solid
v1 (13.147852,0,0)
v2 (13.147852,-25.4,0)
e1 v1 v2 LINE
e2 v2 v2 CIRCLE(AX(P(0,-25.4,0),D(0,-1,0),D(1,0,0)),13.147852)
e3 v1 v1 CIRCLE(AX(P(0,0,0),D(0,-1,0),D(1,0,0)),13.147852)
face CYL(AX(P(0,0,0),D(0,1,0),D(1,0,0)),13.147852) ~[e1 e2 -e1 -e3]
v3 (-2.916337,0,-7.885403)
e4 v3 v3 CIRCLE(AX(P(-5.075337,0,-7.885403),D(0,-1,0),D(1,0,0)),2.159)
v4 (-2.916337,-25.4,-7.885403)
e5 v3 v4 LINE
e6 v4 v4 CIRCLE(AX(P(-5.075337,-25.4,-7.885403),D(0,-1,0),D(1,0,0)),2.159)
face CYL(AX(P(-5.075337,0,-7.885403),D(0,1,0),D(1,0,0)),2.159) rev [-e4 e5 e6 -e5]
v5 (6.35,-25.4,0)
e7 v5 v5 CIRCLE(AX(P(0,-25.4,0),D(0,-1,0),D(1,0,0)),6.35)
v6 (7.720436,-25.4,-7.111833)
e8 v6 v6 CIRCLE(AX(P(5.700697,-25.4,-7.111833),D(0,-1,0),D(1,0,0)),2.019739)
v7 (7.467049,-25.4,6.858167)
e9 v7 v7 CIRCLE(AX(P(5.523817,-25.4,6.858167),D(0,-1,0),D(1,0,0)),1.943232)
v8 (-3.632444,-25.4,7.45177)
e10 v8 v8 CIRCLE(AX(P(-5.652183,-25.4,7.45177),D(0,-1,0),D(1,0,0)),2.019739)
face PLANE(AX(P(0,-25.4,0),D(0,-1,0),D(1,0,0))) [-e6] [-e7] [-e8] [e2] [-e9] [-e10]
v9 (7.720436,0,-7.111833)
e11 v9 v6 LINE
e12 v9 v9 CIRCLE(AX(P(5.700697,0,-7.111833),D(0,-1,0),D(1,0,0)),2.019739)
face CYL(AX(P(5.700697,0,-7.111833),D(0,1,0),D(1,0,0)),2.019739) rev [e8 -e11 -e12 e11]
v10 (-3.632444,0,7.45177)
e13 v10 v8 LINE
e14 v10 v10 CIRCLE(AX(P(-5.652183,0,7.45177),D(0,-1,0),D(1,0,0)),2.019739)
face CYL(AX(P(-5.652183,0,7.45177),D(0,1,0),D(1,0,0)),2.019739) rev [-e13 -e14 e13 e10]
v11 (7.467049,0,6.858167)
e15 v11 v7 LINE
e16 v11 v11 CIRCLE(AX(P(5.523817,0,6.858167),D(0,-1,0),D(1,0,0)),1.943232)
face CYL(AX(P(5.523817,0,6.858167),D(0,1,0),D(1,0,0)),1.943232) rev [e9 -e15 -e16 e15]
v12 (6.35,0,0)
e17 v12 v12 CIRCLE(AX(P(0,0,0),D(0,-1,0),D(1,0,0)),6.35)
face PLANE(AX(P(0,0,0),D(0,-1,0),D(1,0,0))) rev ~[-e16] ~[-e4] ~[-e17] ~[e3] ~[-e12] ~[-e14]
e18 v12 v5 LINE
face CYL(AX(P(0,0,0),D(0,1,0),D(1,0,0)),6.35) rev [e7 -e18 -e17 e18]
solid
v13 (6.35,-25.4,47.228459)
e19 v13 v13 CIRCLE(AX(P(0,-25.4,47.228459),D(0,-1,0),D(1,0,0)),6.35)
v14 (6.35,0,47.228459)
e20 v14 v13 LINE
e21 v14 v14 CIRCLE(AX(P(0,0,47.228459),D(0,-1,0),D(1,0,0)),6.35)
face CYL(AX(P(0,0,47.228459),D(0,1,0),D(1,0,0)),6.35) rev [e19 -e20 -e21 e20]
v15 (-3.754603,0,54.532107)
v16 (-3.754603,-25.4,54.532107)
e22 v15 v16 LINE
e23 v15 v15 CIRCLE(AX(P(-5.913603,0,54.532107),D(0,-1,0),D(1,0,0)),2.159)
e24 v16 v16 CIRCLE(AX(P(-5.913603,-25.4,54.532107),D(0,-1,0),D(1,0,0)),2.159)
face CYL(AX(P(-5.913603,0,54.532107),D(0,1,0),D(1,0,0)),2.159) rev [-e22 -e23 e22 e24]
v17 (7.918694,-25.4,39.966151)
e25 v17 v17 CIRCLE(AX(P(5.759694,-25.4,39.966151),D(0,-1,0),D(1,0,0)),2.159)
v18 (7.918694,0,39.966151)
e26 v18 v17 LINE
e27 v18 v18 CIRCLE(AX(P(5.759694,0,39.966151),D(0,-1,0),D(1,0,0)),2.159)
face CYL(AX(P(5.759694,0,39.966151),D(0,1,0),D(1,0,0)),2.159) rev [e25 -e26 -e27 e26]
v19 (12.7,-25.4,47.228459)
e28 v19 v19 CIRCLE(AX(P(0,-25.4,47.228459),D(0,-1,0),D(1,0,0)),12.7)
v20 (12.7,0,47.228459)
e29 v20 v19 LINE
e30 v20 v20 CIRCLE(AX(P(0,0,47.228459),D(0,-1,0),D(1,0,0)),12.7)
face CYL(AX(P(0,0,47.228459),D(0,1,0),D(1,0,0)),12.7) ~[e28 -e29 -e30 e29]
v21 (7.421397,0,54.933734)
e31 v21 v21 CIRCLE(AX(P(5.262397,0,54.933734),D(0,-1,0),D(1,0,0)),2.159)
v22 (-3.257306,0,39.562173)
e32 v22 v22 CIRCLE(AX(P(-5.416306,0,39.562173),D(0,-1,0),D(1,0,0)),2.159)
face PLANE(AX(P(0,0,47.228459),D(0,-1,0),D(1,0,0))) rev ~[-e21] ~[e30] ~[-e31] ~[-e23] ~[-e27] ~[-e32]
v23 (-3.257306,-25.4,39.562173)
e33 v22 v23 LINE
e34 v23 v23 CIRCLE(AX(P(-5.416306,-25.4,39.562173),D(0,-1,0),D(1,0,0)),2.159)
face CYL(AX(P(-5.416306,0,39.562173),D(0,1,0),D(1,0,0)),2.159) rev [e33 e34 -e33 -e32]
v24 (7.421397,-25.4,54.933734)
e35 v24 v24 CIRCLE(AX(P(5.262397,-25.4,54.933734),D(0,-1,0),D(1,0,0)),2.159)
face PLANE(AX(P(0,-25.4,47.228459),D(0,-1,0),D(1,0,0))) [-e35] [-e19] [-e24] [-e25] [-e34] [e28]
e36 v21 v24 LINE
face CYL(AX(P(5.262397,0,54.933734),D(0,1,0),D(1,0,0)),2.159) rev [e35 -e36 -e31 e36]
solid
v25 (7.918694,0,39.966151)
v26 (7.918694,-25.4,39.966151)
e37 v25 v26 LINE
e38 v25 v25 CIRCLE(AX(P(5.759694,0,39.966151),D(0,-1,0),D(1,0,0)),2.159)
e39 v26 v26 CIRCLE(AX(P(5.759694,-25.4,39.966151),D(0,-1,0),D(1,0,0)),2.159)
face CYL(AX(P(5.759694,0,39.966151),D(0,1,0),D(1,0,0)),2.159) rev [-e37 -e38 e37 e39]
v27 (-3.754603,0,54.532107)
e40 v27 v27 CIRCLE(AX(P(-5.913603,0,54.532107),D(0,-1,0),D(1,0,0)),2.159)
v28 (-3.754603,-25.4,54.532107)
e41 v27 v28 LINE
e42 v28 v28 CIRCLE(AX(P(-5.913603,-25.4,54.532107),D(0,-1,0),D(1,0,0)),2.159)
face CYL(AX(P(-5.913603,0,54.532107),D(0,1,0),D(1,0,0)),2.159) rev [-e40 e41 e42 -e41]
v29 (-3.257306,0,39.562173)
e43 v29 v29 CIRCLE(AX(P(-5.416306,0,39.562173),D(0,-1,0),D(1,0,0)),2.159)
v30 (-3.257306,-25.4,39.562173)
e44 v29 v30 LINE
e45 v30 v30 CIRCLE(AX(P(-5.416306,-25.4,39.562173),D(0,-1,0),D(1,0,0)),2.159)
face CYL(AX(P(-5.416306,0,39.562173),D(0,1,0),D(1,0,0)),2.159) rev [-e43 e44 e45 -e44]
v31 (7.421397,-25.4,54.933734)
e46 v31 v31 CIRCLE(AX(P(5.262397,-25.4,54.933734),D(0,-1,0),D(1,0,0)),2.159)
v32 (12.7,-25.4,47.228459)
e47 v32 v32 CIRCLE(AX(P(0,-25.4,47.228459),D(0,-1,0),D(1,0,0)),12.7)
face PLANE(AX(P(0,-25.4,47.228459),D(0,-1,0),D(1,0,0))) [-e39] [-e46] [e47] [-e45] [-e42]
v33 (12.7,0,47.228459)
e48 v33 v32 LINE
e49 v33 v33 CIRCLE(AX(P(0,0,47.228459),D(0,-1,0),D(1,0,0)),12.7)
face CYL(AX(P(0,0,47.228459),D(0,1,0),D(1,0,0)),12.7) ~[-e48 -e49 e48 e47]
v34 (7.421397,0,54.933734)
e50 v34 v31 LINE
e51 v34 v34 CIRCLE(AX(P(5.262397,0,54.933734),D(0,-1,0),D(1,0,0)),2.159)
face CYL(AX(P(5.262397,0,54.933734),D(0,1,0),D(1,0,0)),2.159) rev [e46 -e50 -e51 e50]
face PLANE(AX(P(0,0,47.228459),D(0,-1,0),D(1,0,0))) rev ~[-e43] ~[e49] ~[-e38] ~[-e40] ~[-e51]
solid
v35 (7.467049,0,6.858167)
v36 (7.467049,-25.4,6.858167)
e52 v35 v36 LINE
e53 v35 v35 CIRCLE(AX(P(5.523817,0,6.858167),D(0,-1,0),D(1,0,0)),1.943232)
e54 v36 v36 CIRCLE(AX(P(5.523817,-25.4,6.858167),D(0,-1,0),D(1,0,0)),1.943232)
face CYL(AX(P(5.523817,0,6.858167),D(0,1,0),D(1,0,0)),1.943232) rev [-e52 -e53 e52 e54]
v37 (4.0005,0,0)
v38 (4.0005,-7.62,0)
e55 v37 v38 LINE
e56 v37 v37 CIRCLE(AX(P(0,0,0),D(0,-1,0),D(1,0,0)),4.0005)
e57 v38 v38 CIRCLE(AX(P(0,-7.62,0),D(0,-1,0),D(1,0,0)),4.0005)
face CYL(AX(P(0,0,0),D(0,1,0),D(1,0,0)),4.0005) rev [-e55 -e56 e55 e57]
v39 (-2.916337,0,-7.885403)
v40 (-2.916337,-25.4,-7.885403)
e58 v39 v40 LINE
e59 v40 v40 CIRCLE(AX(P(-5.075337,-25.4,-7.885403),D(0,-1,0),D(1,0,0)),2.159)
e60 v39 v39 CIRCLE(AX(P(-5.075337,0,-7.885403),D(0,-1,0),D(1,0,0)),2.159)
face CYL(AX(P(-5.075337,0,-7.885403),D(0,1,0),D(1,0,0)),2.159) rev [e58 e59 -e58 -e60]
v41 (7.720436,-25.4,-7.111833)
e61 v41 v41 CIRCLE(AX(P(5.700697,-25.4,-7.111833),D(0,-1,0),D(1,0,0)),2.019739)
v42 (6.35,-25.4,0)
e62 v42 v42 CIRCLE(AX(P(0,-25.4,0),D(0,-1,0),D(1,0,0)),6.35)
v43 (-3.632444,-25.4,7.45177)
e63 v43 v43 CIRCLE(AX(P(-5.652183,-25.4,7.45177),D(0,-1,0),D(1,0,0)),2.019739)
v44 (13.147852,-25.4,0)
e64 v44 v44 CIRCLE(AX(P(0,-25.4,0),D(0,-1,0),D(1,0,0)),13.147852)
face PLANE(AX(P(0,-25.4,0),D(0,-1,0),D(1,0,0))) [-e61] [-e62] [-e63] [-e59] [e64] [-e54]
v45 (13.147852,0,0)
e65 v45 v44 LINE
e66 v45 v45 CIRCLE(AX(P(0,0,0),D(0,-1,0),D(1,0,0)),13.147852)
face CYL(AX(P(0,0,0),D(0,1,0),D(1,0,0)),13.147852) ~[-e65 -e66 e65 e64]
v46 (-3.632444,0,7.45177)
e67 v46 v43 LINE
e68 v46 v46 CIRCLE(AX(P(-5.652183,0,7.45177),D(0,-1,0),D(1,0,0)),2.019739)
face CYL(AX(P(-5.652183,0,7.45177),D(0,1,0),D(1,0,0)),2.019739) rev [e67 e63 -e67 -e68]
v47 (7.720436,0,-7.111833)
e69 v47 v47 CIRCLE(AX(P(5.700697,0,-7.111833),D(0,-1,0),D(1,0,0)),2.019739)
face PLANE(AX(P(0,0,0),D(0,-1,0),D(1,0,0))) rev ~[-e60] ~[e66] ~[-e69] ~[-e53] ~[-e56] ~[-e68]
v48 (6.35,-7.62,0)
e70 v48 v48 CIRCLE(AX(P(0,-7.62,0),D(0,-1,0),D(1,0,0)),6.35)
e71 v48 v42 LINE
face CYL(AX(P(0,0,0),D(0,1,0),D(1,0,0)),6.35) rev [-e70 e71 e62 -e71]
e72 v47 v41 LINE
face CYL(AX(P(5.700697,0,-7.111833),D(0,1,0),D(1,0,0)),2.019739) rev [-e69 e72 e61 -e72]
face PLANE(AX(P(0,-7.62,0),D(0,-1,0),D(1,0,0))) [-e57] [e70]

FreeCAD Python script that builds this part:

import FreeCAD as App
import Part
import Sketcher
from FreeCAD import Vector
Q = App.Units.Quantity

doc = App.newDocument("Part")
body = doc.addObject("PartDesign::Body", "Body")
body.AllowCompound = True

# Sketch on XZ plane
sketch1 = body.newObject("Sketcher::SketchObject", "Sketch")
sketch1.AttachmentSupport = (doc.getObject("XZ_Plane"), [""])
sketch1.MapMode = "FlatFace"
sketch1.addGeometry([
    Part.Circle(Vector(0, 0, 0), Vector(0, 0, 1), 6.35),
    Part.Circle(Vector(0, 0, 0), Vector(0, 0, 1), 4.0005),
], False)
sketch1.addConstraint([
    Sketcher.Constraint("Coincident", 0, 3, -1, 1),
    Sketcher.Constraint("Coincident", 1, 3, -1, 1),
    Sketcher.Constraint("Diameter", 0, Q("0.5 in")),
    Sketcher.Constraint("Diameter", 1, Q("0.315 in")),
])
pad1 = body.newObject("PartDesign::Pad", "Pad")
pad1.Profile = sketch1
pad1.Length = Q("0.3 in")

# Sketch on XZ plane
sketch2 = body.newObject("Sketcher::SketchObject", "Sketch001")
sketch2.AttachmentSupport = (doc.getObject("XZ_Plane"), [""])
sketch2.MapMode = "FlatFace"
sketch2.addGeometry([
    Part.Circle(Vector(0, 0, 0), Vector(0, 0, 1), 13.147852),  # 0
    Part.Circle(Vector(-5.075337, -7.885403, 0), Vector(0, 0, 1), 2.159),  # 1
    Part.Circle(Vector(5.700697, -7.111833, 0), Vector(0, 0, 1), 2.019739),  # 2
    Part.Circle(Vector(0, 0, 0), Vector(0, 0, 1), 6.35),  # 3
    Part.Circle(Vector(-5.652183, 7.45177, 0), Vector(0, 0, 1), 2.019739),  # 4
    Part.Circle(Vector(5.523817, 6.858167, 0), Vector(0, 0, 1), 1.943232),  # 5
], False)
sketch2.addConstraint([
    Sketcher.Constraint("Coincident", 0, 3, -1, 1),
    Sketcher.Constraint("Coincident", 3, 3, -1, 1),
    Sketcher.Constraint("Equal", 2, 4),
    Sketcher.Constraint("Diameter", 3, Q("0.5 in")),
    Sketcher.Constraint("Diameter", 1, Q("0.17 in")),
    Sketcher.Constraint("DistanceX", 4, 3, 5, 3, Q("0.44 in")),
    Sketcher.Constraint("DistanceY", 2, 3, 5, 3, Q("0.55 in")),
    Sketcher.Constraint("Diameter", 0, 26.295704),
    Sketcher.Constraint("Diameter", 2, 4.039478),
    Sketcher.Constraint("Diameter", 5, 3.886464),
    Sketcher.Constraint("DistanceY", -1, 1, 4, 3, 7.45177),
    Sketcher.Constraint("DistanceY", 1, 3, 2, 3, 0.77357),
    Sketcher.Constraint("DistanceX", 4, 3, 2, 3, 11.35288),
    Sketcher.Constraint("DistanceX", 1, 3, -1, 1, 5.075337),
    Sketcher.Constraint("DistanceY", 1, 3, -1, 1, 7.885403),
    Sketcher.Constraint("DistanceX", -1, 1, 2, 3, 5.700697),
])
pad2 = body.newObject("PartDesign::Pad", "Pad001")
pad2.Profile = sketch2
pad2.Length = Q("1 in")

# Sketch on XZ plane
sketch3 = body.newObject("Sketcher::SketchObject", "Sketch002")
sketch3.AttachmentSupport = (doc.getObject("XZ_Plane"), [""])
sketch3.MapMode = "FlatFace"
sketch3.addGeometry([
    Part.Circle(Vector(0, 0, 0), Vector(0, 0, 1), 13.147852),  # 0
    Part.Circle(Vector(-5.075337, -7.885403, 0), Vector(0, 0, 1), 2.159),  # 1
    Part.Circle(Vector(5.700697, -7.111833, 0), Vector(0, 0, 1), 2.019739),  # 2
    Part.Circle(Vector(0, 0, 0), Vector(0, 0, 1), 6.35),  # 3
    Part.Circle(Vector(-5.652183, 7.45177, 0), Vector(0, 0, 1), 2.019739),  # 4
    Part.Circle(Vector(5.523817, 6.858167, 0), Vector(0, 0, 1), 1.943232),  # 5
    Part.Circle(Vector(0, 47.228459, 0), Vector(0, 0, 1), 12.7),  # 6
    Part.Circle(Vector(-5.416306, 39.562173, 0), Vector(0, 0, 1), 2.159),  # 7
    Part.Circle(Vector(5.759694, 39.966151, 0), Vector(0, 0, 1), 2.159),  # 8
    Part.Circle(Vector(0, 47.228459, 0), Vector(0, 0, 1), 6.35),  # 9
    Part.Circle(Vector(-5.913603, 54.532107, 0), Vector(0, 0, 1), 2.159),  # 10
    Part.Circle(Vector(5.262397, 54.933734, 0), Vector(0, 0, 1), 2.159),  # 11
], False)
sketch3.addConstraint([
    Sketcher.Constraint("Coincident", 0, 3, -1, 1),
    Sketcher.Constraint("Coincident", 3, 3, -1, 1),
    Sketcher.Constraint("Coincident", 9, 3, 6, 3),
    Sketcher.Constraint("Equal", 2, 4),
    Sketcher.Constraint("Equal", 1, 7),
    Sketcher.Constraint("Equal", 7, 8),
    Sketcher.Constraint("Equal", 3, 9),
    Sketcher.Constraint("Equal", 8, 10),
    Sketcher.Constraint("Equal", 10, 11),
    Sketcher.Constraint("PointOnObject", 6, 3, -2),
    Sketcher.Constraint("Diameter", 6, Q("1 in")),
    Sketcher.Constraint("Diameter", 3, Q("0.5 in")),
    Sketcher.Constraint("Diameter", 1, Q("0.17 in")),
    Sketcher.Constraint("DistanceX", 4, 3, 5, 3, Q("0.44 in")),
    Sketcher.Constraint("DistanceY", 2, 3, 5, 3, Q("0.55 in")),
    Sketcher.Constraint("DistanceX", 7, 3, 8, 3, Q("0.44 in")),
    Sketcher.Constraint("DistanceX", 10, 3, 11, 3, Q("0.44 in")),
    Sketcher.Constraint("Diameter", 0, 26.295704),
    Sketcher.Constraint("Diameter", 2, 4.039478),
    Sketcher.Constraint("Diameter", 5, 3.886464),
    Sketcher.Constraint("DistanceY", -1, 1, 4, 3, 7.45177),
    Sketcher.Constraint("DistanceY", -1, 1, 6, 3, 47.228459),
    Sketcher.Constraint("DistanceY", -1, 1, 8, 3, 39.966151),
    Sketcher.Constraint("DistanceY", 1, 3, 2, 3, 0.77357),
    Sketcher.Constraint("DistanceX", 4, 3, 2, 3, 11.35288),
    Sketcher.Constraint("DistanceY", 2, 3, 6, 3, 54.340292),
    Sketcher.Constraint("DistanceY", 7, 3, 8, 3, 0.403978),
    Sketcher.Constraint("DistanceY", 6, 3, 10, 3, 7.303648),
    Sketcher.Constraint("DistanceX", 10, 3, 4, 3, 0.26142),
    Sketcher.Constraint("DistanceY", 7, 3, 11, 3, 15.371561),
    Sketcher.Constraint("DistanceX", 1, 3, -1, 1, 5.075337),
    Sketcher.Constraint("DistanceX", -1, 1, 2, 3, 5.700697),
    Sketcher.Constraint("DistanceX", 7, 3, -1, 1, 5.416306),
])
pad3 = body.newObject("PartDesign::Pad", "Pad002")
pad3.Profile = sketch3
pad3.Length = Q("1 in")
body2 = doc.addObject("PartDesign::Body", "Body001")
body2.AllowCompound = True

# Sketch on XZ plane
sketch4 = body2.newObject("Sketcher::SketchObject", "Sketch003")
sketch4.AttachmentSupport = (doc.getObject("XZ_Plane001"), [""])
sketch4.MapMode = "FlatFace"
sketch4.addGeometry([
    Part.Circle(Vector(0, 0, 0), Vector(0, 0, 1), 13.147852),  # 0
    Part.Circle(Vector(-5.075337, -7.885403, 0), Vector(0, 0, 1), 2.159),  # 1
    Part.Circle(Vector(5.700697, -7.111833, 0), Vector(0, 0, 1), 2.019739),  # 2
    Part.Circle(Vector(0, 0, 0), Vector(0, 0, 1), 6.35),  # 3
    Part.Circle(Vector(-5.652183, 7.45177, 0), Vector(0, 0, 1), 2.019739),  # 4
    Part.Circle(Vector(5.523817, 6.858167, 0), Vector(0, 0, 1), 1.943232),  # 5
    Part.Circle(Vector(0, 47.228459, 0), Vector(0, 0, 1), 12.7),  # 6
    Part.Circle(Vector(-5.416306, 39.562173, 0), Vector(0, 0, 1), 2.159),  # 7
    Part.Circle(Vector(5.759694, 39.966151, 0), Vector(0, 0, 1), 2.159),  # 8
    Part.Circle(Vector(-5.913603, 54.532107, 0), Vector(0, 0, 1), 2.159),  # 9
    Part.Circle(Vector(5.262397, 54.933734, 0), Vector(0, 0, 1), 2.159),  # 10
], False)
sketch4.addConstraint([
    Sketcher.Constraint("Coincident", 0, 3, -1, 1),
    Sketcher.Constraint("Coincident", 3, 3, -1, 1),
    Sketcher.Constraint("Equal", 2, 4),
    Sketcher.Constraint("Equal", 1, 7),
    Sketcher.Constraint("Equal", 7, 8),
    Sketcher.Constraint("Equal", 8, 9),
    Sketcher.Constraint("Equal", 9, 10),
    Sketcher.Constraint("PointOnObject", 6, 3, -2),
    Sketcher.Constraint("Diameter", 6, Q("1 in")),
    Sketcher.Constraint("Diameter", 3, Q("0.5 in")),
    Sketcher.Constraint("Diameter", 1, Q("0.17 in")),
    Sketcher.Constraint("DistanceX", 4, 3, 5, 3, Q("0.44 in")),
    Sketcher.Constraint("DistanceY", 2, 3, 5, 3, Q("0.55 in")),
    Sketcher.Constraint("DistanceX", 7, 3, 8, 3, Q("0.44 in")),
    Sketcher.Constraint("DistanceX", 9, 3, 10, 3, Q("0.44 in")),
    Sketcher.Constraint("Diameter", 0, 26.295704),
    Sketcher.Constraint("Diameter", 2, 4.039478),
    Sketcher.Constraint("Diameter", 5, 3.886464),
    Sketcher.Constraint("DistanceY", -1, 1, 4, 3, 7.45177),
    Sketcher.Constraint("DistanceY", -1, 1, 6, 3, 47.228459),
    Sketcher.Constraint("DistanceY", -1, 1, 8, 3, 39.966151),
    Sketcher.Constraint("DistanceY", 1, 3, 2, 3, 0.77357),
    Sketcher.Constraint("DistanceX", 4, 3, 2, 3, 11.35288),
    Sketcher.Constraint("DistanceY", 2, 3, 6, 3, 54.340292),
    Sketcher.Constraint("DistanceY", 7, 3, 8, 3, 0.403978),
    Sketcher.Constraint("DistanceY", 6, 3, 9, 3, 7.303648),
    Sketcher.Constraint("DistanceX", 9, 3, 4, 3, 0.26142),
    Sketcher.Constraint("DistanceY", 7, 3, 10, 3, 15.371561),
    Sketcher.Constraint("DistanceX", 1, 3, -1, 1, 5.075337),
    Sketcher.Constraint("DistanceX", -1, 1, 2, 3, 5.700697),
    Sketcher.Constraint("DistanceX", 7, 3, -1, 1, 5.416306),
])
pad4 = body2.newObject("PartDesign::Pad", "Pad003")
pad4.Profile = sketch4
pad4.Length = Q("1 in")

doc.recompute()
